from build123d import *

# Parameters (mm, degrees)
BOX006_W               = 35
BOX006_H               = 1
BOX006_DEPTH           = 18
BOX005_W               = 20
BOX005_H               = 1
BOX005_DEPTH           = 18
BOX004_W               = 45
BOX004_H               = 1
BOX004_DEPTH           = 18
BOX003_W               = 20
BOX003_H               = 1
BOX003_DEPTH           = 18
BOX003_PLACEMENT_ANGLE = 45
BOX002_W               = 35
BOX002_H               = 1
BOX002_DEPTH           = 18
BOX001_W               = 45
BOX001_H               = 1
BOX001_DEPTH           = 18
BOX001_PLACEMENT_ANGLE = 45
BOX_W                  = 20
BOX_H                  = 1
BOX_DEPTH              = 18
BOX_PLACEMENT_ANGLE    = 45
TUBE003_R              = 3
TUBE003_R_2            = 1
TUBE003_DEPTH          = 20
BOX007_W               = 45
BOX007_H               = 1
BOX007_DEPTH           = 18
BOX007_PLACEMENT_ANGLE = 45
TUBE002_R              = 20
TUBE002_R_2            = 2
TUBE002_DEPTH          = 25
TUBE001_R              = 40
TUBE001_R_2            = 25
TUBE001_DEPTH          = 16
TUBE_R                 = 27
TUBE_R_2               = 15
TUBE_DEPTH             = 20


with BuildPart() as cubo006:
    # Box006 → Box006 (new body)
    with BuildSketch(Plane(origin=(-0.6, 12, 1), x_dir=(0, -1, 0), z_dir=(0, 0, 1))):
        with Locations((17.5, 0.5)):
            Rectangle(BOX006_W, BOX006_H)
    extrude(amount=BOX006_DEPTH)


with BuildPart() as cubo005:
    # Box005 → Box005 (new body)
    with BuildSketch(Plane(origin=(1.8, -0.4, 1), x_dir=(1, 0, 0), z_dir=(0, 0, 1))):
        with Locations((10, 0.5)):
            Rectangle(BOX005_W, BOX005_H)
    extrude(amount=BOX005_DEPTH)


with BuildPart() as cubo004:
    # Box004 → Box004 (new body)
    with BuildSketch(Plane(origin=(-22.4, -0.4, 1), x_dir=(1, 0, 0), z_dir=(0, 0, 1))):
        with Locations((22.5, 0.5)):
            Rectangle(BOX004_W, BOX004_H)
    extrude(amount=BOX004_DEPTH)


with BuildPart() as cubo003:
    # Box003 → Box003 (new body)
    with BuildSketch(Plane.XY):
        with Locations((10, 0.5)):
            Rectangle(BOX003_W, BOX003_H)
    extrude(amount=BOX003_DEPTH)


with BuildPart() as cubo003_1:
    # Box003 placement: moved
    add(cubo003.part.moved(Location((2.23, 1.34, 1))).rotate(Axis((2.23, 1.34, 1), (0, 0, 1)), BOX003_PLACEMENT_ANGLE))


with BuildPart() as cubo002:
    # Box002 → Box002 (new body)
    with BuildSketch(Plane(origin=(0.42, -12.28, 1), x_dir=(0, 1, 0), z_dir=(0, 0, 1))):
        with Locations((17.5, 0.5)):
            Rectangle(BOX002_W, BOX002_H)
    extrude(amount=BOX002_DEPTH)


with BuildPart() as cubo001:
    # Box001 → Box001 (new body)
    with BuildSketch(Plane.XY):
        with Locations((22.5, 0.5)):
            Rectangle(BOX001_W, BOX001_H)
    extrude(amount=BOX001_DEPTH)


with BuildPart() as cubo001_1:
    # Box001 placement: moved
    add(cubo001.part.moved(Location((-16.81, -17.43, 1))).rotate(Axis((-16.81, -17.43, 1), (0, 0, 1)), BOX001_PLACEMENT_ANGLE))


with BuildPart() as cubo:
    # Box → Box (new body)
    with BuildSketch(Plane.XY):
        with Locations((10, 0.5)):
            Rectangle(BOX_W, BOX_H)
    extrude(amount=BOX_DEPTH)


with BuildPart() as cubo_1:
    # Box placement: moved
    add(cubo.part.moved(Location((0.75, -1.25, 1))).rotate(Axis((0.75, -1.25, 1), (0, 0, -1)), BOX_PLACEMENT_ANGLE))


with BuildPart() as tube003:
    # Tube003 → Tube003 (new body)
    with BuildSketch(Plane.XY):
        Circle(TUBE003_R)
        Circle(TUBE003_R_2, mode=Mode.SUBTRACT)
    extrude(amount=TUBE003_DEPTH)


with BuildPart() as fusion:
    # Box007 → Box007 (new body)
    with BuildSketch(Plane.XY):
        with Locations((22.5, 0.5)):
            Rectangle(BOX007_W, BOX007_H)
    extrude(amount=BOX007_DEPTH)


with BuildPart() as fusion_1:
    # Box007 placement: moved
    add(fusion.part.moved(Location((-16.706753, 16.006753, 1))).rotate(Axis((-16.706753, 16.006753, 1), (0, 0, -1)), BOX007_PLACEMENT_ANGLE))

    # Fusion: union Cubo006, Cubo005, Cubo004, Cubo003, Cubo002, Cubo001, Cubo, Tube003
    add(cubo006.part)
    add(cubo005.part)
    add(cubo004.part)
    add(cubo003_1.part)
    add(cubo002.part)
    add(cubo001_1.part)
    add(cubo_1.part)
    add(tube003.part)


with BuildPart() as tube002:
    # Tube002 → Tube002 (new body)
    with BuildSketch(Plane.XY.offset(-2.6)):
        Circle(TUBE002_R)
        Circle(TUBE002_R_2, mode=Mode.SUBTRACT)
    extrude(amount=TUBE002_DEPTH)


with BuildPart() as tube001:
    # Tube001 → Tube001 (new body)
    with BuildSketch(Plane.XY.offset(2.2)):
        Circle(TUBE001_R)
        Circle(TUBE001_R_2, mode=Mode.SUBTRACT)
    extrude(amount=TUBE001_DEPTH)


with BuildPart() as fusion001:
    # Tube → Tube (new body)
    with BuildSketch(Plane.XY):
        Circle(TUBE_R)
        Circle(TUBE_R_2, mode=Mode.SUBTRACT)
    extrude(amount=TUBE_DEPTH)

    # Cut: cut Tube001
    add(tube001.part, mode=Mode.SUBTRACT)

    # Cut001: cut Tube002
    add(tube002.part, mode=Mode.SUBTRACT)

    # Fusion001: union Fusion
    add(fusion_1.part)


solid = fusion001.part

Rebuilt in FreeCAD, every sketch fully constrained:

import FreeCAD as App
import Part
import Sketcher
from FreeCAD import Vector


def add_polygon(sketch, points):
    """Adds a closed chain of lines whose ends are joined by coincident constraints."""
    first, n = sketch.GeometryCount, len(points)
    for a, b in zip(points, points[1:] + points[:1]):
        sketch.addGeometry(Part.LineSegment(App.Vector(*a, 0), App.Vector(*b, 0)), False)
    for i in range(n):
        sketch.addConstraint(Sketcher.Constraint("Coincident", first + i, 2, first + (i + 1) % n, 1))

doc = App.newDocument("Part")
body = doc.addObject("PartDesign::Body", "Body")

sketch1 = body.newObject("Sketcher::SketchObject", "Sketch")
sketch1.AttachmentSupport = (doc.getObject("XY_Plane"), [""])
sketch1.MapMode = "FlatFace"
sketch1.AttachmentOffset = App.Placement(Vector(0, 0, 1), App.Rotation())
add_polygon(sketch1, [(0.4, 12), (-0.6, 12), (-0.6, -23), (0.4, -23)])
sketch1.addConstraint([
    Sketcher.Constraint("Horizontal", 0),
    Sketcher.Constraint("Vertical", 1),
    Sketcher.Constraint("Horizontal", 2),
    Sketcher.Constraint("Vertical", 3),
    Sketcher.Constraint("DistanceX", 0, 2, 0, 1, 1.0),
    Sketcher.Constraint("DistanceY", 1, 2, 1, 1, 35.0),
    Sketcher.Constraint("DistanceY", -1, 1, 0, 2, 12.0),
    Sketcher.Constraint("DistanceX", 0, 2, -1, 1, 0.6),
])
pad1 = body.newObject("PartDesign::Pad", "Pad")
pad1.Profile = sketch1
pad1.Length = 18
body2 = doc.addObject("PartDesign::Body", "Body001")

sketch2 = body2.newObject("Sketcher::SketchObject", "Sketch001")
sketch2.AttachmentSupport = (doc.getObject("XY_Plane001"), [""])
sketch2.MapMode = "FlatFace"
sketch2.AttachmentOffset = App.Placement(Vector(0, 0, 1), App.Rotation())
add_polygon(sketch2, [(1.8, 0.6), (1.8, -0.4), (21.8, -0.4), (21.8, 0.6)])
sketch2.addConstraint([
    Sketcher.Constraint("Vertical", 0),
    Sketcher.Constraint("Horizontal", 1),
    Sketcher.Constraint("Vertical", 2),
    Sketcher.Constraint("Horizontal", 3),
    Sketcher.Constraint("DistanceX", 1, 1, 1, 2, 20.0),
    Sketcher.Constraint("DistanceY", 0, 2, 0, 1, 1.0),
    Sketcher.Constraint("DistanceX", -1, 1, 0, 2, 1.8),
    Sketcher.Constraint("DistanceY", 0, 2, -1, 1, 0.4),
])
pad2 = body2.newObject("PartDesign::Pad", "Pad001")
pad2.Profile = sketch2
pad2.Length = 18
body3 = doc.addObject("PartDesign::Body", "Body002")

sketch3 = body3.newObject("Sketcher::SketchObject", "Sketch002")
sketch3.AttachmentSupport = (doc.getObject("XY_Plane002"), [""])
sketch3.MapMode = "FlatFace"
sketch3.AttachmentOffset = App.Placement(Vector(0, 0, 1), App.Rotation())
add_polygon(sketch3, [(-22.4, 0.6), (-22.4, -0.4), (22.6, -0.4), (22.6, 0.6)])
sketch3.addConstraint([
    Sketcher.Constraint("Vertical", 0),
    Sketcher.Constraint("Horizontal", 1),
    Sketcher.Constraint("Vertical", 2),
    Sketcher.Constraint("Horizontal", 3),
    Sketcher.Constraint("DistanceX", 1, 1, 1, 2, 45.0),
    Sketcher.Constraint("DistanceY", 0, 2, 0, 1, 1.0),
    Sketcher.Constraint("DistanceX", 0, 2, -1, 1, 22.4),
    Sketcher.Constraint("DistanceY", 0, 2, -1, 1, 0.4),
])
pad3 = body3.newObject("PartDesign::Pad", "Pad002")
pad3.Profile = sketch3
pad3.Length = 18
body4 = doc.addObject("PartDesign::Body", "Body003")

sketch4 = body4.newObject("Sketcher::SketchObject", "Sketch003")
sketch4.AttachmentSupport = (doc.getObject("XY_Plane003"), [""])
sketch4.MapMode = "FlatFace"
add_polygon(sketch4, [(0, 1), (0, 0), (20, 0), (20, 1)])
sketch4.addConstraint([
    Sketcher.Constraint("Vertical", 0),
    Sketcher.Constraint("Horizontal", 1),
    Sketcher.Constraint("Vertical", 2),
    Sketcher.Constraint("Horizontal", 3),
    Sketcher.Constraint("Coincident", 0, 2, -1, 1),
    Sketcher.Constraint("DistanceX", 1, 1, 1, 2, 20.0),
    Sketcher.Constraint("DistanceY", 0, 2, 0, 1, 1.0),
])
pad4 = body4.newObject("PartDesign::Pad", "Pad003")
pad4.Profile = sketch4
pad4.Length = 18
body5 = doc.addObject("PartDesign::Body", "Body004")
doc.recompute()

body4.Placement = App.Placement(Vector(2.23, 1.34, 1), App.Rotation(Vector(0, 0, 1), 45))
boolean = body5.newObject("PartDesign::Boolean", "Boolean")
boolean.Type = "Fuse"
boolean.addObjects([body4])
body6 = doc.addObject("PartDesign::Body", "Body005")

sketch5 = body6.newObject("Sketcher::SketchObject", "Sketch004")
sketch5.AttachmentSupport = (doc.getObject("XY_Plane005"), [""])
sketch5.MapMode = "FlatFace"
sketch5.AttachmentOffset = App.Placement(Vector(0, 0, 1), App.Rotation())
add_polygon(sketch5, [(-0.58, -12.28), (0.42, -12.28), (0.42, 22.72), (-0.58, 22.72)])
sketch5.addConstraint([
    Sketcher.Constraint("Horizontal", 0),
    Sketcher.Constraint("Vertical", 1),
    Sketcher.Constraint("Horizontal", 2),
    Sketcher.Constraint("Vertical", 3),
    Sketcher.Constraint("DistanceX", 0, 1, 0, 2, 1.0),
    Sketcher.Constraint("DistanceY", 1, 1, 1, 2, 35.0),
    Sketcher.Constraint("DistanceX", -1, 1, 0, 2, 0.42),
    Sketcher.Constraint("DistanceY", 0, 2, -1, 1, 12.28),
])
pad5 = body6.newObject("PartDesign::Pad", "Pad004")
pad5.Profile = sketch5
pad5.Length = 18
body7 = doc.addObject("PartDesign::Body", "Body006")

sketch6 = body7.newObject("Sketcher::SketchObject", "Sketch005")
sketch6.AttachmentSupport = (doc.getObject("XY_Plane006"), [""])
sketch6.MapMode = "FlatFace"
add_polygon(sketch6, [(0, 1), (0, 0), (45, 0), (45, 1)])
sketch6.addConstraint([
    Sketcher.Constraint("Vertical", 0),
    Sketcher.Constraint("Horizontal", 1),
    Sketcher.Constraint("Vertical", 2),
    Sketcher.Constraint("Horizontal", 3),
    Sketcher.Constraint("Coincident", 0, 2, -1, 1),
    Sketcher.Constraint("DistanceX", 1, 1, 1, 2, 45.0),
    Sketcher.Constraint("DistanceY", 0, 2, 0, 1, 1.0),
])
pad6 = body7.newObject("PartDesign::Pad", "Pad005")
pad6.Profile = sketch6
pad6.Length = 18
body8 = doc.addObject("PartDesign::Body", "Body007")
doc.recompute()

body7.Placement = App.Placement(Vector(-16.81, -17.43, 1), App.Rotation(Vector(0, 0, 1), 45))
boolean2 = body8.newObject("PartDesign::Boolean", "Boolean001")
boolean2.Type = "Fuse"
boolean2.addObjects([body7])
body9 = doc.addObject("PartDesign::Body", "Body008")

sketch7 = body9.newObject("Sketcher::SketchObject", "Sketch006")
sketch7.AttachmentSupport = (doc.getObject("XY_Plane008"), [""])
sketch7.MapMode = "FlatFace"
add_polygon(sketch7, [(0, 1), (0, 0), (20, 0), (20, 1)])
sketch7.addConstraint([
    Sketcher.Constraint("Vertical", 0),
    Sketcher.Constraint("Horizontal", 1),
    Sketcher.Constraint("Vertical", 2),
    Sketcher.Constraint("Horizontal", 3),
    Sketcher.Constraint("Coincident", 0, 2, -1, 1),
    Sketcher.Constraint("DistanceX", 1, 1, 1, 2, 20.0),
    Sketcher.Constraint("DistanceY", 0, 2, 0, 1, 1.0),
])
pad7 = body9.newObject("PartDesign::Pad", "Pad006")
pad7.Profile = sketch7
pad7.Length = 18
body10 = doc.addObject("PartDesign::Body", "Body009")
doc.recompute()

body9.Placement = App.Placement(Vector(0.75, -1.25, 1), App.Rotation(Vector(0, 0, -1), 45))
boolean3 = body10.newObject("PartDesign::Boolean", "Boolean002")
boolean3.Type = "Fuse"
boolean3.addObjects([body9])
body11 = doc.addObject("PartDesign::Body", "Body010")

sketch8 = body11.newObject("Sketcher::SketchObject", "Sketch007")
sketch8.AttachmentSupport = (doc.getObject("XY_Plane010"), [""])
sketch8.MapMode = "FlatFace"
sketch8.addGeometry([
    Part.Circle(Vector(0, 0, 0), Vector(0, 0, 1), 3),
    Part.Circle(Vector(0, 0, 0), Vector(0, 0, 1), 1),
], False)
sketch8.addConstraint([
    Sketcher.Constraint("Coincident", 0, 3, -1, 1),
    Sketcher.Constraint("Coincident", 1, 3, -1, 1),
    Sketcher.Constraint("Diameter", 0, 6.0),
    Sketcher.Constraint("Diameter", 1, 2.0),
])
pad8 = body11.newObject("PartDesign::Pad", "Pad007")
pad8.Profile = sketch8
pad8.Length = 20
body12 = doc.addObject("PartDesign::Body", "Body011")

sketch9 = body12.newObject("Sketcher::SketchObject", "Sketch008")
sketch9.AttachmentSupport = (doc.getObject("XY_Plane011"), [""])
sketch9.MapMode = "FlatFace"
add_polygon(sketch9, [(0, 1), (0, 0), (45, 0), (45, 1)])
sketch9.addConstraint([
    Sketcher.Constraint("Vertical", 0),
    Sketcher.Constraint("Horizontal", 1),
    Sketcher.Constraint("Vertical", 2),
    Sketcher.Constraint("Horizontal", 3),
    Sketcher.Constraint("Coincident", 0, 2, -1, 1),
    Sketcher.Constraint("DistanceX", 1, 1, 1, 2, 45.0),
    Sketcher.Constraint("DistanceY", 0, 2, 0, 1, 1.0),
])
pad9 = body12.newObject("PartDesign::Pad", "Pad008")
pad9.Profile = sketch9
pad9.Length = 18
body13 = doc.addObject("PartDesign::Body", "Body012")
body13.AllowCompound = True
doc.recompute()

body12.Placement = App.Placement(Vector(-16.706753, 16.006753, 1), App.Rotation(Vector(0, 0, -1), 45))
boolean4 = body13.newObject("PartDesign::Boolean", "Boolean003")
boolean4.Type = "Fuse"
boolean4.addObjects([body12])
doc.recompute()

boolean5 = body13.newObject("PartDesign::Boolean", "Boolean004")
boolean5.Type = "Fuse"
boolean5.addObjects([body])
doc.recompute()

boolean6 = body13.newObject("PartDesign::Boolean", "Boolean005")
boolean6.Type = "Fuse"
boolean6.addObjects([body2])
doc.recompute()

boolean7 = body13.newObject("PartDesign::Boolean", "Boolean006")
boolean7.Type = "Fuse"
boolean7.addObjects([body3])
doc.recompute()

boolean8 = body13.newObject("PartDesign::Boolean", "Boolean007")
boolean8.Type = "Fuse"
boolean8.addObjects([body5])
doc.recompute()

boolean9 = body13.newObject("PartDesign::Boolean", "Boolean008")
boolean9.Type = "Fuse"
boolean9.addObjects([body6])
doc.recompute()

boolean10 = body13.newObject("PartDesign::Boolean", "Boolean009")
boolean10.Type = "Fuse"
boolean10.addObjects([body8])
doc.recompute()

boolean11 = body13.newObject("PartDesign::Boolean", "Boolean010")
boolean11.Type = "Fuse"
boolean11.addObjects([body10])
doc.recompute()

boolean12 = body13.newObject("PartDesign::Boolean", "Boolean011")
boolean12.Type = "Fuse"
boolean12.addObjects([body11])
body14 = doc.addObject("PartDesign::Body", "Body013")

sketch10 = body14.newObject("Sketcher::SketchObject", "Sketch009")
sketch10.AttachmentSupport = (doc.getObject("XY_Plane013"), [""])
sketch10.MapMode = "FlatFace"
sketch10.AttachmentOffset = App.Placement(Vector(0, 0, -2.6), App.Rotation())
sketch10.addGeometry([
    Part.Circle(Vector(0, 0, 0), Vector(0, 0, 1), 20),
    Part.Circle(Vector(0, 0, 0), Vector(0, 0, 1), 2),
], False)
sketch10.addConstraint([
    Sketcher.Constraint("Coincident", 0, 3, -1, 1),
    Sketcher.Constraint("Coincident", 1, 3, -1, 1),
    Sketcher.Constraint("Diameter", 0, 40.0),
    Sketcher.Constraint("Diameter", 1, 4.0),
])
pad10 = body14.newObject("PartDesign::Pad", "Pad009")
pad10.Profile = sketch10
pad10.Length = 25
body15 = doc.addObject("PartDesign::Body", "Body014")

sketch11 = body15.newObject("Sketcher::SketchObject", "Sketch010")
sketch11.AttachmentSupport = (doc.getObject("XY_Plane014"), [""])
sketch11.MapMode = "FlatFace"
sketch11.AttachmentOffset = App.Placement(Vector(0, 0, 2.2), App.Rotation())
sketch11.addGeometry([
    Part.Circle(Vector(0, 0, 0), Vector(0, 0, 1), 40),
    Part.Circle(Vector(0, 0, 0), Vector(0, 0, 1), 25),
], False)
sketch11.addConstraint([
    Sketcher.Constraint("Coincident", 0, 3, -1, 1),
    Sketcher.Constraint("Coincident", 1, 3, -1, 1),
    Sketcher.Constraint("Diameter", 0, 80.0),
    Sketcher.Constraint("Diameter", 1, 50.0),
])
pad11 = body15.newObject("PartDesign::Pad", "Pad010")
pad11.Profile = sketch11
pad11.Length = 16
body16 = doc.addObject("PartDesign::Body", "Body015")

sketch12 = body16.newObject("Sketcher::SketchObject", "Sketch011")
sketch12.AttachmentSupport = (doc.getObject("XY_Plane015"), [""])
sketch12.MapMode = "FlatFace"
sketch12.addGeometry([
    Part.Circle(Vector(0, 0, 0), Vector(0, 0, 1), 27),
    Part.Circle(Vector(0, 0, 0), Vector(0, 0, 1), 15),
], False)
sketch12.addConstraint([
    Sketcher.Constraint("Coincident", 0, 3, -1, 1),
    Sketcher.Constraint("Coincident", 1, 3, -1, 1),
    Sketcher.Constraint("Diameter", 0, 54.0),
    Sketcher.Constraint("Diameter", 1, 30.0),
])
pad12 = body16.newObject("PartDesign::Pad", "Pad011")
pad12.Profile = sketch12
pad12.Length = 20
doc.recompute()

boolean13 = body16.newObject("PartDesign::Boolean", "Boolean012")
boolean13.Type = "Cut"
boolean13.addObjects([body15])
doc.recompute()

boolean14 = body16.newObject("PartDesign::Boolean", "Boolean013")
boolean14.Type = "Cut"
boolean14.addObjects([body14])
doc.recompute()

boolean15 = body16.newObject("PartDesign::Boolean", "Boolean014")
boolean15.Type = "Fuse"
boolean15.addObjects([body13])

doc.recompute()
